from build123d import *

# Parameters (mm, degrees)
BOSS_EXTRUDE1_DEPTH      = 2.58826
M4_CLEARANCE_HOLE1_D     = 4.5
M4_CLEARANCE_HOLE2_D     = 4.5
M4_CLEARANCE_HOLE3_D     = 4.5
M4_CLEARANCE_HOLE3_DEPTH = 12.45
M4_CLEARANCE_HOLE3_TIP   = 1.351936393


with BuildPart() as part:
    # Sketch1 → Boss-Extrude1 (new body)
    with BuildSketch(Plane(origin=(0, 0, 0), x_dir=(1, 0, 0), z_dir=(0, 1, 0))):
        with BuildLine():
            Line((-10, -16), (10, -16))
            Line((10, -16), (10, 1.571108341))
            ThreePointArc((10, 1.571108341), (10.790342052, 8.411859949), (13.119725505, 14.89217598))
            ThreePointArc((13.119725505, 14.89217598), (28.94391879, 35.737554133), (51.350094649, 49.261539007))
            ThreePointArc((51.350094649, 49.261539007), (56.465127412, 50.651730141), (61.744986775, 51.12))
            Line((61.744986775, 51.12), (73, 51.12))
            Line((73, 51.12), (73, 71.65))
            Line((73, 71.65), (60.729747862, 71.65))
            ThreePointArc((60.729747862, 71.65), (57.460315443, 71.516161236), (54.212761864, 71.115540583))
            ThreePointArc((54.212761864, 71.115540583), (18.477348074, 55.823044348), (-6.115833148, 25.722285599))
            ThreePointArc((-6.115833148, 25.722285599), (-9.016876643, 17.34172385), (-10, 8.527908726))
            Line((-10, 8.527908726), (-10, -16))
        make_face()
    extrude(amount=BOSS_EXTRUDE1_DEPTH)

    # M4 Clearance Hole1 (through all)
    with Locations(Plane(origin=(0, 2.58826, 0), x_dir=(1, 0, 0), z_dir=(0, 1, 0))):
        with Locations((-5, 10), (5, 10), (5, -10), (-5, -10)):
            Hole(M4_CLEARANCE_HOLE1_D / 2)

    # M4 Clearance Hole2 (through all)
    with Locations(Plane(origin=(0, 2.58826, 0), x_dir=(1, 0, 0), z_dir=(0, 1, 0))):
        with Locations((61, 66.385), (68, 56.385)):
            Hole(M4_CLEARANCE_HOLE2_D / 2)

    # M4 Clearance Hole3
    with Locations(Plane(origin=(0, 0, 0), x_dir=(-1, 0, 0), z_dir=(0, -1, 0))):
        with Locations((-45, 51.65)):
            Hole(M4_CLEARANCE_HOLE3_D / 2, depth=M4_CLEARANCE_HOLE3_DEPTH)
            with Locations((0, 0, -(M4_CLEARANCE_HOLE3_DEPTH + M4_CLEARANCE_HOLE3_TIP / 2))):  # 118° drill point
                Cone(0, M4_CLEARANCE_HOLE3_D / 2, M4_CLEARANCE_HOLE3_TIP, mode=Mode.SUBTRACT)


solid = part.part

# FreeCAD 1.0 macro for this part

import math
import FreeCAD as App
import Part
import Sketcher

V = App.Vector

doc = App.newDocument("Part")
body = doc.addObject("PartDesign::Body", "Body")

sketch1 = body.newObject("Sketcher::SketchObject", "Sketch")
sketch1.AttachmentSupport = (doc.getObject("XZ_Plane"), [""])
sketch1.MapMode = "FlatFace"
sketch1.addGeometry(Part.LineSegment(V(-10, 16, 0), V(10, 16, 0)), False)
sketch1.addGeometry(Part.LineSegment(V(10, 16, 0), V(10, -2, 0)), False)
sketch1.addGeometry(Part.ArcOfCircle(Part.Circle(V(40, -2, 0), V(0, 0, 1), 30), math.radians(180), math.radians(206)), False)
sketch1.addGeometry(Part.ArcOfCircle(Part.Circle(V(75, 16, 0), V(0, 0, 1), 70), math.radians(-154), math.radians(-110)), False)
sketch1.addGeometry(Part.ArcOfCircle(Part.Circle(V(62, -21, 0), V(0, 0, 1), 30), math.radians(-110), math.radians(-90)), False)
sketch1.addGeometry(Part.LineSegment(V(62, -51, 0), V(73, -51, 0)), False)
sketch1.addGeometry(Part.LineSegment(V(73, -51, 0), V(73, -72, 0)), False)
sketch1.addGeometry(Part.LineSegment(V(73, -72, 0), V(61, -72, 0)), False)
sketch1.addGeometry(Part.ArcOfCircle(Part.Circle(V(61, -32, 0), V(0, 0, 1), 40), math.radians(-99.38), math.radians(-90)), False)
sketch1.addGeometry(Part.ArcOfCircle(Part.Circle(V(67, 9, 0), V(0, 0, 1), 82), math.radians(-155), math.radians(-99)), False)
sketch1.addGeometry(Part.ArcOfCircle(Part.Circle(V(30, -9, 0), V(0, 0, 1), 40), math.radians(180), math.radians(205)), False)
sketch1.addGeometry(Part.LineSegment(V(-10, -9, 0), V(-10, 16, 0)), False)
sketch1.addConstraint(Sketcher.Constraint("Coincident", 0, 2, 1, 1))
sketch1.addConstraint(Sketcher.Constraint("Tangent", 1, 2, 2, 1))
sketch1.addConstraint(Sketcher.Constraint("Tangent", 2, 2, 3, 1))
sketch1.addConstraint(Sketcher.Constraint("Tangent", 3, 2, 4, 1))
sketch1.addConstraint(Sketcher.Constraint("Tangent", 4, 2, 5, 1))
sketch1.addConstraint(Sketcher.Constraint("Coincident", 5, 2, 6, 1))
sketch1.addConstraint(Sketcher.Constraint("Coincident", 6, 2, 7, 1))
sketch1.addConstraint(Sketcher.Constraint("Tangent", 7, 2, 8, 2))
sketch1.addConstraint(Sketcher.Constraint("Tangent", 8, 1, 9, 2))
sketch1.addConstraint(Sketcher.Constraint("Tangent", 9, 1, 10, 2))
sketch1.addConstraint(Sketcher.Constraint("Tangent", 10, 1, 11, 1))
sketch1.addConstraint(Sketcher.Constraint("Coincident", 11, 2, 0, 1))
sketch1.addConstraint(Sketcher.Constraint("Horizontal", 0))
sketch1.addConstraint(Sketcher.Constraint("Vertical", 1))
sketch1.addConstraint(Sketcher.Constraint("Horizontal", 5))
sketch1.addConstraint(Sketcher.Constraint("Vertical", 6))
sketch1.addConstraint(Sketcher.Constraint("Horizontal", 7))
sketch1.addConstraint(Sketcher.Constraint("Vertical", 11))
sketch1.addConstraint(Sketcher.Constraint("Equal", 2, 4))
sketch1.addConstraint(Sketcher.Constraint("Equal", 8, 10))
sketch1.addConstraint(Sketcher.Constraint("Horizontal", 3, 3, 0, 2))
sketch1.addConstraint(Sketcher.Constraint("Radius", 2, 30.0))
sketch1.addConstraint(Sketcher.Constraint("Radius", 8, 40.0))
sketch1.addConstraint(Sketcher.Constraint("DistanceX", 0, 1, 0, 2, 20.0))
sketch1.addConstraint(Sketcher.Constraint("DistanceX", -1, 1, 2, 3, 40.0))
sketch1.addConstraint(Sketcher.Constraint("DistanceY", -1, 1, 3, 3, 16.0))
sketch1.addConstraint(Sketcher.Constraint("DistanceX", -1, 1, 5, 2, 73.0))
sketch1.addConstraint(Sketcher.Constraint("DistanceY", 6, 2, 6, 1, 20.53))
sketch1.addConstraint(Sketcher.Constraint("DistanceY", 4, 3, -1, 1, 21.12))
sketch1.addConstraint(Sketcher.Constraint("Radius", 3, 69.571397))
sketch1.addConstraint(Sketcher.Constraint("Radius", 9, 81.528304))
sketch1.addConstraint(Sketcher.Constraint("DistanceY", 8, 1, 3, 2, 21.854002))
sketch1.addConstraint(Sketcher.Constraint("DistanceY", 1, 2, 1, 1, 17.571108))
sketch1.addConstraint(Sketcher.Constraint("DistanceY", 11, 1, 11, 2, 24.527909))
pad1 = body.newObject("PartDesign::Pad", "Pad")
pad1.Profile = sketch1
pad1.Length = 2.58826
pad1.Reversed = True

sketch2 = body.newObject("Sketcher::SketchObject", "Sketch001")
sketch2.AttachmentSupport = (doc.getObject("XZ_Plane"), [""])
sketch2.MapMode = "FlatFace"
sketch2.AttachmentOffset = App.Placement(V(0, 0, -2.58826), App.Rotation())
sketch2.addGeometry(Part.Circle(V(-5, -10, 0), V(0, 0, 1), 2.2), False)
sketch2.addGeometry(Part.Circle(V(5, -10, 0), V(0, 0, 1), 2.2), False)
sketch2.addGeometry(Part.Circle(V(5, 10, 0), V(0, 0, 1), 2.2), False)
sketch2.addGeometry(Part.Circle(V(-5, 10, 0), V(0, 0, 1), 2.2), False)
sketch2.addConstraint(Sketcher.Constraint("Equal", 0, 1))
sketch2.addConstraint(Sketcher.Constraint("Equal", 1, 2))
sketch2.addConstraint(Sketcher.Constraint("Equal", 2, 3))
sketch2.addConstraint(Sketcher.Constraint("Symmetric", 0, 3, 2, 3, -1, 1))
sketch2.addConstraint(Sketcher.Constraint("Symmetric", 1, 3, 3, 3, -1, 1))
sketch2.addConstraint(Sketcher.Constraint("Symmetric", 0, 3, 1, 3, -2))
sketch2.addConstraint(Sketcher.Constraint("Diameter", 0, 4.5))
sketch2.addConstraint(Sketcher.Constraint("DistanceX", 0, 3, -1, 1, 5.0))
sketch2.addConstraint(Sketcher.Constraint("DistanceY", 0, 3, -1, 1, 10.0))
doc.recompute()
hole = body.newObject("PartDesign::Hole", "Hole")
hole.Profile = sketch2
hole.ThreadType = "None"
hole.Diameter = 4.5
hole.DepthType = "ThroughAll"
hole.Reversed = True

sketch3 = body.newObject("Sketcher::SketchObject", "Sketch002")
sketch3.AttachmentSupport = (doc.getObject("XZ_Plane"), [""])
sketch3.MapMode = "FlatFace"
sketch3.AttachmentOffset = App.Placement(V(0, 0, -2.58826), App.Rotation())
sketch3.addGeometry(Part.Circle(V(61, -66.4, 0), V(0, 0, 1), 2.2), False)
sketch3.addGeometry(Part.Circle(V(68, -56.4, 0), V(0, 0, 1), 2.2), False)
sketch3.addConstraint(Sketcher.Constraint("Equal", 0, 1))
sketch3.addConstraint(Sketcher.Constraint("Diameter", 0, 4.5))
sketch3.addConstraint(Sketcher.Constraint("DistanceX", -1, 1, 0, 3, 61.0))
sketch3.addConstraint(Sketcher.Constraint("DistanceX", -1, 1, 1, 3, 68.0))
sketch3.addConstraint(Sketcher.Constraint("DistanceY", 0, 3, 1, 3, 10.0))
sketch3.addConstraint(Sketcher.Constraint("DistanceY", 0, 3, -1, 1, 66.385))
doc.recompute()
hole2 = body.newObject("PartDesign::Hole", "Hole001")
hole2.Profile = sketch3
hole2.ThreadType = "None"
hole2.Diameter = 4.5
hole2.DepthType = "ThroughAll"
hole2.Reversed = True

sketch4 = body.newObject("Sketcher::SketchObject", "Sketch003")
sketch4.AttachmentSupport = (doc.getObject("XZ_Plane"), [""])
sketch4.MapMode = "FlatFace"
sketch4.addGeometry(Part.Circle(V(45, -51.6, 0), V(0, 0, 1), 2.2), False)
sketch4.addConstraint(Sketcher.Constraint("Diameter", 0, 4.5))
sketch4.addConstraint(Sketcher.Constraint("DistanceX", -1, 1, 0, 3, 45.0))
sketch4.addConstraint(Sketcher.Constraint("DistanceY", 0, 3, -1, 1, 51.65))
doc.recompute()
hole3 = body.newObject("PartDesign::Hole", "Hole002")
hole3.Profile = sketch4
hole3.ThreadType = "None"
hole3.Diameter = 4.5
hole3.DepthType = "Dimension"
hole3.Depth = 12.45
hole3.DrillPoint = "Angled"
hole3.DrillPointAngle = 118

doc.recompute()
